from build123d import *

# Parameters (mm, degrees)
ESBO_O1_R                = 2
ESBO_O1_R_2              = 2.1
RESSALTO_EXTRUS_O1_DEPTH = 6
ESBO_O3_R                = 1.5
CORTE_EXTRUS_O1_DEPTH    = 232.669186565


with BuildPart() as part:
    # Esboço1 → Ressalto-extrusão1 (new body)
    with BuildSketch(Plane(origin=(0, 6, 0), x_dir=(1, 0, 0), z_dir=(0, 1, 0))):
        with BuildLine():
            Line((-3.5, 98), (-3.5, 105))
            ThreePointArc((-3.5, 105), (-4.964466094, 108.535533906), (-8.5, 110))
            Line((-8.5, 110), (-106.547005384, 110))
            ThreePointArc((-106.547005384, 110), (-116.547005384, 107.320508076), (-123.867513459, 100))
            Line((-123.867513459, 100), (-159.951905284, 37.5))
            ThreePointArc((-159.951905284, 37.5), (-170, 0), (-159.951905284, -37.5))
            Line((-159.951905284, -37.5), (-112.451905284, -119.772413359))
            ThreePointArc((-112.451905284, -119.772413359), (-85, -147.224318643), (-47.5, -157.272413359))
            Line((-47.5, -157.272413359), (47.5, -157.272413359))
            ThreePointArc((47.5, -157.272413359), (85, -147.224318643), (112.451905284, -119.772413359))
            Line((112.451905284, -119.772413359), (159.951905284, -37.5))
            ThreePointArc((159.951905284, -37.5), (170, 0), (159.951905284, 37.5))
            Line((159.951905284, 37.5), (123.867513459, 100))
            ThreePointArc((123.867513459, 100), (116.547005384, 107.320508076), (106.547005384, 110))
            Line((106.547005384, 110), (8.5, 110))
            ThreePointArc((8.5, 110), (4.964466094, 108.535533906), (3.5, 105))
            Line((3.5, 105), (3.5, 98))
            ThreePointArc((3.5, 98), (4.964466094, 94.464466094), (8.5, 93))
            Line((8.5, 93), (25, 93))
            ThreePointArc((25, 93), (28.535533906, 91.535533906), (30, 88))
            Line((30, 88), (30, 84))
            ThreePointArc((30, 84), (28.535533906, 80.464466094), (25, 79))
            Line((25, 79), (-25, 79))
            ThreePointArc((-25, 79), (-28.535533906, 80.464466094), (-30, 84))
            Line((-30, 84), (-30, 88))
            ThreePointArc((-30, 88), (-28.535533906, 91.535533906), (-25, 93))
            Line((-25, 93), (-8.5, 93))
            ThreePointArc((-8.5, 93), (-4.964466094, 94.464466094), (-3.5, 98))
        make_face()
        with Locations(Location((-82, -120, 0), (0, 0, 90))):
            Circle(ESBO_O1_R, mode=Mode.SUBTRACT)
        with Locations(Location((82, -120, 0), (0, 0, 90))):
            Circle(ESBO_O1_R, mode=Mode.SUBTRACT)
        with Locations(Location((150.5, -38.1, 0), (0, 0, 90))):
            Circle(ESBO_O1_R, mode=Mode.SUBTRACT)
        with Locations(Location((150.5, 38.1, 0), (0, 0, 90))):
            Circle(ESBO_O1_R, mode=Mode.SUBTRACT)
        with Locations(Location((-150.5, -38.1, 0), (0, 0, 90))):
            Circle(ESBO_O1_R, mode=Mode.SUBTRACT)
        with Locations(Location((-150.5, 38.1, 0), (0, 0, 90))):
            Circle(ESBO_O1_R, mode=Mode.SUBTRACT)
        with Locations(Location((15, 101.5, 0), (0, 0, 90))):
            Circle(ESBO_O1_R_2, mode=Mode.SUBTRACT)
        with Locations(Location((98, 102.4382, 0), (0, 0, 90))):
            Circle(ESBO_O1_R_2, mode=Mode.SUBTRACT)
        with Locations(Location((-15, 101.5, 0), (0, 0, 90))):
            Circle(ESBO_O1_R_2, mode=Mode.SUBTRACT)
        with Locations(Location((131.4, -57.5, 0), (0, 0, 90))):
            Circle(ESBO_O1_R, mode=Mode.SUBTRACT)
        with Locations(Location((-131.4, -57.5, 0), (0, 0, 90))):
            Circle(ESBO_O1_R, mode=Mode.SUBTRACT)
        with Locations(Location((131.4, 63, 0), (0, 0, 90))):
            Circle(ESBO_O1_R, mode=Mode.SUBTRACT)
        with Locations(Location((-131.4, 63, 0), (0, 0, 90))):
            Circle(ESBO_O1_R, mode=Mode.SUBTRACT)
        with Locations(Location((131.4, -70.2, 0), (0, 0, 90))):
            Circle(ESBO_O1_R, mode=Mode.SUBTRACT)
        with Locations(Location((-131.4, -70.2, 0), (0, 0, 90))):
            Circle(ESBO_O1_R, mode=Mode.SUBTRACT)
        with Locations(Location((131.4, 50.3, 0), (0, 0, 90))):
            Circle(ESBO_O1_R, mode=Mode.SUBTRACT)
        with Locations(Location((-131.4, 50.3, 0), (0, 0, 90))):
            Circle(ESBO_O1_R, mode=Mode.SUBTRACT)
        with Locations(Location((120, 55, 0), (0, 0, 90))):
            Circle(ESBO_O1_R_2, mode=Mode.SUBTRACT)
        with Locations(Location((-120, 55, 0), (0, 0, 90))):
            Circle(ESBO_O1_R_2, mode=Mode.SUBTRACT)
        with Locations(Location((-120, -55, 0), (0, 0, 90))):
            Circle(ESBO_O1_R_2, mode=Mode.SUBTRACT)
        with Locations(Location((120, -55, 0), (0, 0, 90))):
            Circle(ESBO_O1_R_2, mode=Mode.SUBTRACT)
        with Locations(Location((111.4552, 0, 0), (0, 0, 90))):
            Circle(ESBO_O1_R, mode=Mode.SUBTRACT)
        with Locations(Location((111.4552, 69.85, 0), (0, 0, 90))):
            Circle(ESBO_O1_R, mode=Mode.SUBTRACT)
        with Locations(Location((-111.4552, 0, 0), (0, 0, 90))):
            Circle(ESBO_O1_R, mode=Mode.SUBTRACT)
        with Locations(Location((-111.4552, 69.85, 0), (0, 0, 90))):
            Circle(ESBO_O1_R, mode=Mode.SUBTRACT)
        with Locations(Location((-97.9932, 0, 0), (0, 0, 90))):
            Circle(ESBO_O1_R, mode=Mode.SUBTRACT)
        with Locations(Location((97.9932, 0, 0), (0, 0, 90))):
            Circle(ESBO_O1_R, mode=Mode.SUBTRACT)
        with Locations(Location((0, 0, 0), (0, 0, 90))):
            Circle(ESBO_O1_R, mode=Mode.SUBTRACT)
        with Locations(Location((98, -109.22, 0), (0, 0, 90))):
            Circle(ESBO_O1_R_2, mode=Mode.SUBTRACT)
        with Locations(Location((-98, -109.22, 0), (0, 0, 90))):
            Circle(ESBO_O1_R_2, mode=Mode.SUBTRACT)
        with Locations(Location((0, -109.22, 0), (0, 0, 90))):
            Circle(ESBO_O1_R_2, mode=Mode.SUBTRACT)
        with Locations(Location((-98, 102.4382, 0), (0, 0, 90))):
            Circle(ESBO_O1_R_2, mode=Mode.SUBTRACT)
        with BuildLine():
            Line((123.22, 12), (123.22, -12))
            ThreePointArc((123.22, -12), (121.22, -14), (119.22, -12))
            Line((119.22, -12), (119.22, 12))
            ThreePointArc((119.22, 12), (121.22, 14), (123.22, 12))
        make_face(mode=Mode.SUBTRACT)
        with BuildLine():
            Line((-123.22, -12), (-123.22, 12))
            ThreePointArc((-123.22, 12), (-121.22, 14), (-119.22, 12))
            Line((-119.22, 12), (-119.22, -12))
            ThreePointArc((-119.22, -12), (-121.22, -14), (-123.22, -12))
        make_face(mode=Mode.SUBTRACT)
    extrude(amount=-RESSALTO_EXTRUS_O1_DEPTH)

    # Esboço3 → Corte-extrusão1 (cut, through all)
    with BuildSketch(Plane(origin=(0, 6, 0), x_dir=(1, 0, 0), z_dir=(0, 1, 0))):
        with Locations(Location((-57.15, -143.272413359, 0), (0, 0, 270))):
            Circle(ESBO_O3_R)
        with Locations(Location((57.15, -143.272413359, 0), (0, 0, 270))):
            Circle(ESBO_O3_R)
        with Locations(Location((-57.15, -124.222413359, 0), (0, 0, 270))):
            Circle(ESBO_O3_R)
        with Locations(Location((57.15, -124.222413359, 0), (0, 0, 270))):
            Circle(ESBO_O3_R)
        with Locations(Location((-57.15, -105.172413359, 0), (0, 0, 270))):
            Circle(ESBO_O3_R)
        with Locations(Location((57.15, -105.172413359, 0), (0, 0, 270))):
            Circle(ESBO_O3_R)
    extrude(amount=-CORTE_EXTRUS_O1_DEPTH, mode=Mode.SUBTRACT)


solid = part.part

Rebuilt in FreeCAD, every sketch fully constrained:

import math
import FreeCAD as App
import Part
import Sketcher
Q = App.Units.Quantity

doc = App.newDocument("Part")
body = doc.addObject("PartDesign::Body", "Body")

# Sketch on XZ plane
sketch1 = body.newObject("Sketcher::SketchObject", "Sketch")
sketch1.AttachmentSupport = (doc.getObject("XZ_Plane"), [""])
sketch1.MapMode = "FlatFace"
sketch1.AttachmentOffset = App.Placement(App.Vector(0, 0, -6), App.Rotation())
sketch1.addGeometry([
    Part.LineSegment(App.Vector(-3.5, -98, 0), App.Vector(-3.5, -105, 0)),  # 0
    Part.ArcOfCircle(Part.Circle(App.Vector(-8.5, -105, 0), App.Vector(0, 0, 1), 5), math.radians(-90), math.radians(0)),  # 1
    Part.LineSegment(App.Vector(-8.5, -110, 0), App.Vector(-106.547005, -110, 0)),  # 2
    Part.ArcOfCircle(Part.Circle(App.Vector(-106.547005, -90, 0), App.Vector(0, 0, 1), 20), math.radians(-150), math.radians(-90)),  # 3
    Part.LineSegment(App.Vector(-123.867513, -100, 0), App.Vector(-159.951905, -37.5, 0)),  # 4
    Part.ArcOfCircle(Part.Circle(App.Vector(-95, 0, 0), App.Vector(0, 0, 1), 75), math.radians(150), math.radians(210)),  # 5
    Part.LineSegment(App.Vector(-159.951905, 37.5, 0), App.Vector(-112.451905, 119.772413, 0)),  # 6
    Part.ArcOfCircle(Part.Circle(App.Vector(-47.5, 82.272413, 0), App.Vector(0, 0, 1), 75), math.radians(90), math.radians(150)),  # 7
    Part.LineSegment(App.Vector(-47.5, 157.272413, 0), App.Vector(47.5, 157.272413, 0)),  # 8
    Part.ArcOfCircle(Part.Circle(App.Vector(47.5, 82.272413, 0), App.Vector(0, 0, 1), 75), math.radians(30), math.radians(90)),  # 9
    Part.LineSegment(App.Vector(112.451905, 119.772413, 0), App.Vector(159.951905, 37.5, 0)),  # 10
    Part.ArcOfCircle(Part.Circle(App.Vector(95, 0, 0), App.Vector(0, 0, 1), 75), math.radians(-30), math.radians(30)),  # 11
    Part.LineSegment(App.Vector(159.951905, -37.5, 0), App.Vector(123.867513, -100, 0)),  # 12
    Part.ArcOfCircle(Part.Circle(App.Vector(106.547005, -90, 0), App.Vector(0, 0, 1), 20), math.radians(-90), math.radians(-30)),  # 13
    Part.LineSegment(App.Vector(106.547005, -110, 0), App.Vector(8.5, -110, 0)),  # 14
    Part.ArcOfCircle(Part.Circle(App.Vector(8.5, -105, 0), App.Vector(0, 0, 1), 5), math.radians(180), math.radians(270)),  # 15
    Part.LineSegment(App.Vector(3.5, -105, 0), App.Vector(3.5, -98, 0)),  # 16
    Part.ArcOfCircle(Part.Circle(App.Vector(8.5, -98, 0), App.Vector(0, 0, 1), 5), math.radians(90), math.radians(180)),  # 17
    Part.LineSegment(App.Vector(8.5, -93, 0), App.Vector(25, -93, 0)),  # 18
    Part.ArcOfCircle(Part.Circle(App.Vector(25, -88, 0), App.Vector(0, 0, 1), 5), math.radians(-90), math.radians(0)),  # 19
    Part.LineSegment(App.Vector(30, -88, 0), App.Vector(30, -84, 0)),  # 20
    Part.ArcOfCircle(Part.Circle(App.Vector(25, -84, 0), App.Vector(0, 0, 1), 5), math.radians(0), math.radians(90)),  # 21
    Part.LineSegment(App.Vector(25, -79, 0), App.Vector(-25, -79, 0)),  # 22
    Part.ArcOfCircle(Part.Circle(App.Vector(-25, -84, 0), App.Vector(0, 0, 1), 5), math.radians(90), math.radians(180)),  # 23
    Part.LineSegment(App.Vector(-30, -84, 0), App.Vector(-30, -88, 0)),  # 24
    Part.ArcOfCircle(Part.Circle(App.Vector(-25, -88, 0), App.Vector(0, 0, 1), 5), math.radians(180), math.radians(270)),  # 25
    Part.LineSegment(App.Vector(-25, -93, 0), App.Vector(-8.5, -93, 0)),  # 26
    Part.ArcOfCircle(Part.Circle(App.Vector(-8.5, -98, 0), App.Vector(0, 0, 1), 5), math.radians(0), math.radians(90)),  # 27
    Part.Circle(App.Vector(-98, 109.22, 0), App.Vector(0, 0, 1), 2.1),  # 28
    Part.Circle(App.Vector(-82, 120, 0), App.Vector(0, 0, 1), 2),  # 29
    Part.Circle(App.Vector(-131.4, 70.2, 0), App.Vector(0, 0, 1), 2),  # 30
    Part.Circle(App.Vector(-131.4, 57.5, 0), App.Vector(0, 0, 1), 2),  # 31
    Part.Circle(App.Vector(-120, 55, 0), App.Vector(0, 0, 1), 2.1),  # 32
    Part.Circle(App.Vector(-150.5, 38.1, 0), App.Vector(0, 0, 1), 2),  # 33
    Part.Circle(App.Vector(0, 109.22, 0), App.Vector(0, 0, 1), 2.1),  # 34
    Part.Circle(App.Vector(82, 120, 0), App.Vector(0, 0, 1), 2),  # 35
    Part.Circle(App.Vector(98, 109.22, 0), App.Vector(0, 0, 1), 2.1),  # 36
    Part.Circle(App.Vector(131.4, 70.2, 0), App.Vector(0, 0, 1), 2),  # 37
    Part.Circle(App.Vector(120, 55, 0), App.Vector(0, 0, 1), 2.1),  # 38
    Part.Circle(App.Vector(131.4, 57.5, 0), App.Vector(0, 0, 1), 2),  # 39
    Part.Circle(App.Vector(150.5, 38.1, 0), App.Vector(0, 0, 1), 2),  # 40
    Part.ArcOfCircle(Part.Circle(App.Vector(-121.22, 12, 0), App.Vector(0, 0, 1), 2), math.radians(0), math.radians(180)),  # 41
    Part.LineSegment(App.Vector(-123.22, 12, 0), App.Vector(-123.22, -12, 0)),  # 42
    Part.ArcOfCircle(Part.Circle(App.Vector(-121.22, -12, 0), App.Vector(0, 0, 1), 2), math.radians(180), math.radians(360)),  # 43
    Part.LineSegment(App.Vector(-119.22, -12, 0), App.Vector(-119.22, 12, 0)),  # 44
    Part.Circle(App.Vector(-111.4552, 0, 0), App.Vector(0, 0, 1), 2),  # 45
    Part.Circle(App.Vector(-97.9932, 0, 0), App.Vector(0, 0, 1), 2),  # 46
    Part.Circle(App.Vector(-150.5, -38.1, 0), App.Vector(0, 0, 1), 2),  # 47
    Part.Circle(App.Vector(-131.4, -50.3, 0), App.Vector(0, 0, 1), 2),  # 48
    Part.Circle(App.Vector(-120, -55, 0), App.Vector(0, 0, 1), 2.1),  # 49
    Part.Circle(App.Vector(-131.4, -63, 0), App.Vector(0, 0, 1), 2),  # 50
    Part.Circle(App.Vector(-111.4552, -69.85, 0), App.Vector(0, 0, 1), 2),  # 51
    Part.Circle(App.Vector(-98, -102.4382, 0), App.Vector(0, 0, 1), 2.1),  # 52
    Part.Circle(App.Vector(-15, -101.5, 0), App.Vector(0, 0, 1), 2.1),  # 53
    Part.Circle(App.Vector(0, 0, 0), App.Vector(0, 0, 1), 2),  # 54
    Part.Circle(App.Vector(97.9932, 0, 0), App.Vector(0, 0, 1), 2),  # 55
    Part.Circle(App.Vector(111.4552, 0, 0), App.Vector(0, 0, 1), 2),  # 56
    Part.ArcOfCircle(Part.Circle(App.Vector(121.22, -12, 0), App.Vector(0, 0, 1), 2), math.radians(180), math.radians(360)),  # 57
    Part.LineSegment(App.Vector(123.22, -12, 0), App.Vector(123.22, 12, 0)),  # 58
    Part.ArcOfCircle(Part.Circle(App.Vector(121.22, 12, 0), App.Vector(0, 0, 1), 2), math.radians(0), math.radians(180)),  # 59
    Part.LineSegment(App.Vector(119.22, 12, 0), App.Vector(119.22, -12, 0)),  # 60
    Part.Circle(App.Vector(150.5, -38.1, 0), App.Vector(0, 0, 1), 2),  # 61
    Part.Circle(App.Vector(15, -101.5, 0), App.Vector(0, 0, 1), 2.1),  # 62
    Part.Circle(App.Vector(111.4552, -69.85, 0), App.Vector(0, 0, 1), 2),  # 63
    Part.Circle(App.Vector(131.4, -50.3, 0), App.Vector(0, 0, 1), 2),  # 64
    Part.Circle(App.Vector(120, -55, 0), App.Vector(0, 0, 1), 2.1),  # 65
    Part.Circle(App.Vector(131.4, -63, 0), App.Vector(0, 0, 1), 2),  # 66
    Part.Circle(App.Vector(98, -102.4382, 0), App.Vector(0, 0, 1), 2.1),  # 67
], False)
sketch1.addConstraint([
    Sketcher.Constraint("Tangent", 0, 2, 1, 2),
    Sketcher.Constraint("Tangent", 1, 1, 2, 1),
    Sketcher.Constraint("Tangent", 2, 2, 3, 2),
    Sketcher.Constraint("Tangent", 3, 1, 4, 1),
    Sketcher.Constraint("Tangent", 4, 2, 5, 2),
    Sketcher.Constraint("Tangent", 5, 1, 6, 1),
    Sketcher.Constraint("Tangent", 6, 2, 7, 2),
    Sketcher.Constraint("Tangent", 7, 1, 8, 1),
    Sketcher.Constraint("Tangent", 8, 2, 9, 2),
    Sketcher.Constraint("Tangent", 9, 1, 10, 1),
    Sketcher.Constraint("Tangent", 10, 2, 11, 2),
    Sketcher.Constraint("Tangent", 11, 1, 12, 1),
    Sketcher.Constraint("Tangent", 12, 2, 13, 2),
    Sketcher.Constraint("Tangent", 13, 1, 14, 1),
    Sketcher.Constraint("Tangent", 14, 2, 15, 2),
    Sketcher.Constraint("Tangent", 15, 1, 16, 1),
    Sketcher.Constraint("Tangent", 16, 2, 17, 2),
    Sketcher.Constraint("Tangent", 17, 1, 18, 1),
    Sketcher.Constraint("Tangent", 18, 2, 19, 1),
    Sketcher.Constraint("Tangent", 19, 2, 20, 1),
    Sketcher.Constraint("Tangent", 20, 2, 21, 1),
    Sketcher.Constraint("Tangent", 21, 2, 22, 1),
    Sketcher.Constraint("Tangent", 22, 2, 23, 1),
    Sketcher.Constraint("Tangent", 23, 2, 24, 1),
    Sketcher.Constraint("Tangent", 24, 2, 25, 1),
    Sketcher.Constraint("Tangent", 25, 2, 26, 1),
    Sketcher.Constraint("Tangent", 26, 2, 27, 2),
    Sketcher.Constraint("Tangent", 27, 1, 0, 1),
    Sketcher.Constraint("Tangent", 41, 2, 42, 1),
    Sketcher.Constraint("Tangent", 42, 2, 43, 1),
    Sketcher.Constraint("Tangent", 43, 2, 44, 1),
    Sketcher.Constraint("Tangent", 44, 2, 41, 1),
    Sketcher.Constraint("Tangent", 57, 2, 58, 1),
    Sketcher.Constraint("Tangent", 58, 2, 59, 1),
    Sketcher.Constraint("Tangent", 59, 2, 60, 1),
    Sketcher.Constraint("Tangent", 60, 2, 57, 1),
    Sketcher.Constraint("Vertical", 0),
    Sketcher.Constraint("Horizontal", 2),
    Sketcher.Constraint("Horizontal", 8),
    Sketcher.Constraint("Horizontal", 14),
    Sketcher.Constraint("Vertical", 16),
    Sketcher.Constraint("Horizontal", 18),
    Sketcher.Constraint("Vertical", 20),
    Sketcher.Constraint("Horizontal", 22),
    Sketcher.Constraint("Vertical", 24),
    Sketcher.Constraint("Horizontal", 26),
    Sketcher.Constraint("Vertical", 42),
    Sketcher.Constraint("Vertical", 44),
    Sketcher.Constraint("Vertical", 58),
    Sketcher.Constraint("Vertical", 60),
    Sketcher.Constraint("Coincident", 54, 3, -1, 1),
    Sketcher.Constraint("Equal", 5, 7),
    Sketcher.Constraint("Equal", 7, 9),
    Sketcher.Constraint("Equal", 9, 11),
    Sketcher.Constraint("Equal", 3, 13),
    Sketcher.Constraint("Equal", 1, 15),
    Sketcher.Constraint("Equal", 15, 17),
    Sketcher.Constraint("Equal", 17, 19),
    Sketcher.Constraint("Equal", 19, 21),
    Sketcher.Constraint("Equal", 21, 23),
    Sketcher.Constraint("Equal", 23, 25),
    Sketcher.Constraint("Equal", 25, 27),
    Sketcher.Constraint("Equal", 29, 30),
    Sketcher.Constraint("Equal", 30, 31),
    Sketcher.Constraint("Equal", 28, 32),
    Sketcher.Constraint("Equal", 31, 33),
    Sketcher.Constraint("Equal", 32, 34),
    Sketcher.Constraint("Equal", 33, 35),
    Sketcher.Constraint("Equal", 34, 36),
    Sketcher.Constraint("Equal", 35, 37),
    Sketcher.Constraint("Equal", 36, 38),
    Sketcher.Constraint("Equal", 37, 39),
    Sketcher.Constraint("Equal", 39, 40),
    Sketcher.Constraint("Equal", 40, 41),
    Sketcher.Constraint("Equal", 43, 45),
    Sketcher.Constraint("Equal", 45, 46),
    Sketcher.Constraint("Equal", 46, 47),
    Sketcher.Constraint("Equal", 47, 48),
    Sketcher.Constraint("Equal", 38, 49),
    Sketcher.Constraint("Equal", 48, 50),
    Sketcher.Constraint("Equal", 50, 51),
    Sketcher.Constraint("Equal", 49, 52),
    Sketcher.Constraint("Equal", 52, 53),
    Sketcher.Constraint("Equal", 51, 54),
    Sketcher.Constraint("Equal", 54, 55),
    Sketcher.Constraint("Equal", 55, 56),
    Sketcher.Constraint("Equal", 56, 57),
    Sketcher.Constraint("Equal", 59, 61),
    Sketcher.Constraint("Equal", 53, 62),
    Sketcher.Constraint("Equal", 61, 63),
    Sketcher.Constraint("Equal", 63, 64),
    Sketcher.Constraint("Equal", 62, 65),
    Sketcher.Constraint("Equal", 64, 66),
    Sketcher.Constraint("Equal", 65, 67),
    Sketcher.Constraint("Symmetric", 5, 3, 11, 3, -1, 1),
    Sketcher.Constraint("Symmetric", 40, 3, 47, 3, -1, 1),
    Sketcher.Constraint("Symmetric", 38, 3, 49, 3, -1, 1),
    Sketcher.Constraint("Symmetric", 46, 3, 55, 3, -1, 1),
    Sketcher.Constraint("Symmetric", 45, 3, 56, 3, -1, 1),
    Sketcher.Constraint("Symmetric", 41, 3, 57, 3, -1, 1),
    Sketcher.Constraint("Symmetric", 33, 3, 61, 3, -1, 1),
    Sketcher.Constraint("Symmetric", 32, 3, 65, 3, -1, 1),
    Sketcher.Constraint("Symmetric", 3, 3, 13, 3, -2),
    Sketcher.Constraint("Symmetric", 19, 3, 25, 3, -2),
    Sketcher.Constraint("Symmetric", 29, 3, 35, 3, -2),
    Sketcher.Constraint("Symmetric", 28, 3, 36, 3, -2),
    Sketcher.Constraint("Symmetric", 30, 3, 37, 3, -2),
    Sketcher.Constraint("Symmetric", 32, 3, 38, 3, -2),
    Sketcher.Constraint("Symmetric", 31, 3, 39, 3, -2),
    Sketcher.Constraint("Symmetric", 33, 3, 40, 3, -2),
    Sketcher.Constraint("Symmetric", 53, 3, 62, 3, -2),
    Sketcher.Constraint("Symmetric", 51, 3, 63, 3, -2),
    Sketcher.Constraint("Symmetric", 48, 3, 64, 3, -2),
    Sketcher.Constraint("Symmetric", 50, 3, 66, 3, -2),
    Sketcher.Constraint("Symmetric", 52, 3, 67, 3, -2),
    Sketcher.Constraint("Symmetric", 6, 2, 9, 1, -2),
    Sketcher.Constraint("PointOnObject", 34, 3, -2),
    Sketcher.Constraint("PointOnObject", 45, 3, -1),
    Sketcher.Constraint("PointOnObject", 46, 3, -1),
    Sketcher.Constraint("Parallel", 4, 10),
    Sketcher.Constraint("Horizontal", 28, 3, 34, 3),
    Sketcher.Constraint("Horizontal", 43, 3, 57, 3),
    Sketcher.Constraint("Horizontal", 41, 3, 59, 3),
    Sketcher.Constraint("Vertical", 30, 3, 31, 3),
    Sketcher.Constraint("Vertical", 31, 3, 48, 3),
    Sketcher.Constraint("Vertical", 48, 3, 50, 3),
    Sketcher.Constraint("Vertical", 45, 3, 51, 3),
    Sketcher.Constraint("Vertical", 28, 3, 52, 3),
    Sketcher.Constraint("Equal", 2, 14),
    Sketcher.Constraint("Diameter", 29, Q("4 mm")),
    Sketcher.Constraint("Radius", 1, Q("5 mm")),
    Sketcher.Constraint("Radius", 3, Q("20 mm")),
    Sketcher.Constraint("Radius", 5, Q("75 mm")),
    Sketcher.Constraint("Diameter", 28, Q("4.2 mm")),
    Sketcher.Constraint("DistanceX", 8, 1, 8, 2, Q("95 mm")),
    Sketcher.Constraint("DistanceX", 22, 2, 22, 1, Q("50 mm")),
    Sketcher.Constraint("DistanceY", 0, 2, 0, 1, Q("7 mm")),
    Sketcher.Constraint("DistanceY", 20, 1, 20, 2, Q("4 mm")),
    Sketcher.Constraint("DistanceY", 42, 2, 42, 1, Q("24 mm")),
    Sketcher.Constraint("Angle", 4, Q("120 deg")),
    Sketcher.Constraint("Distance", 6, Q("95 mm")),
    Sketcher.Constraint("DistanceX", 18, 1, 18, 2, Q("16.5 mm")),
    Sketcher.Constraint("DistanceY", 1, 3, -1, 1, Q("105 mm")),
    Sketcher.Constraint("DistanceX", 28, 3, -1, 1, Q("98 mm")),
    Sketcher.Constraint("DistanceX", 29, 3, -1, 1, Q("82 mm")),
    Sketcher.Constraint("DistanceY", -1, 1, 29, 3, Q("120 mm")),
    Sketcher.Constraint("DistanceX", 32, 3, -1, 1, Q("120 mm")),
    Sketcher.Constraint("DistanceY", -1, 1, 32, 3, Q("55 mm")),
    Sketcher.Constraint("DistanceY", 50, 3, -1, 1, Q("63 mm")),
    Sketcher.Constraint("DistanceX", 53, 3, -1, 1, Q("15 mm")),
    Sketcher.Constraint("DistanceX", 30, 3, -1, 1, Q("131.4 mm")),
    Sketcher.Constraint("DistanceY", -1, 1, 30, 3, Q("70.2 mm")),
    Sketcher.Constraint("DistanceY", -1, 1, 31, 3, Q("57.5 mm")),
    Sketcher.Constraint("DistanceX", 33, 3, -1, 1, Q("150.5 mm")),
    Sketcher.Constraint("DistanceY", -1, 1, 33, 3, Q("38.1 mm")),
    Sketcher.Constraint("DistanceY", 48, 3, -1, 1, Q("50.3 mm")),
    Sketcher.Constraint("DistanceY", 53, 3, -1, 1, Q("101.5 mm")),
    Sketcher.Constraint("DistanceY", -1, 1, 28, 3, Q("109.22 mm")),
    Sketcher.Constraint("DistanceX", 41, 3, -1, 1, Q("121.22 mm")),
    Sketcher.Constraint("DistanceY", 51, 3, -1, 1, Q("69.85 mm")),
    Sketcher.Constraint("DistanceX", 45, 3, -1, 1, Q("111.4552 mm")),
    Sketcher.Constraint("DistanceX", 46, 3, -1, 1, Q("97.9932 mm")),
    Sketcher.Constraint("DistanceY", 52, 3, -1, 1, Q("102.4382 mm")),
])
pad1 = body.newObject("PartDesign::Pad", "Pad")
pad1.Profile = sketch1
pad1.Length = 6

# Sketch on XZ plane
sketch2 = body.newObject("Sketcher::SketchObject", "Sketch001")
sketch2.AttachmentSupport = (doc.getObject("XZ_Plane"), [""])
sketch2.MapMode = "FlatFace"
sketch2.AttachmentOffset = App.Placement(App.Vector(0, 0, -6), App.Rotation())
sketch2.addGeometry([
    Part.Circle(App.Vector(-57.15, 143.272413, 0), App.Vector(0, 0, 1), 1.5),  # 0
    Part.Circle(App.Vector(57.15, 143.272413, 0), App.Vector(0, 0, 1), 1.5),  # 1
    Part.Circle(App.Vector(-57.15, 124.222413, 0), App.Vector(0, 0, 1), 1.5),  # 2
    Part.Circle(App.Vector(57.15, 124.222413, 0), App.Vector(0, 0, 1), 1.5),  # 3
    Part.Circle(App.Vector(-57.15, 105.172413, 0), App.Vector(0, 0, 1), 1.5),  # 4
    Part.Circle(App.Vector(57.15, 105.172413, 0), App.Vector(0, 0, 1), 1.5),  # 5
], False)
sketch2.addConstraint([
    Sketcher.Constraint("Equal", 0, 1),
    Sketcher.Constraint("Equal", 1, 2),
    Sketcher.Constraint("Equal", 2, 3),
    Sketcher.Constraint("Equal", 3, 4),
    Sketcher.Constraint("Equal", 4, 5),
    Sketcher.Constraint("Symmetric", 0, 3, 1, 3, -2),
    Sketcher.Constraint("Symmetric", 2, 3, 3, 3, -2),
    Sketcher.Constraint("Symmetric", 4, 3, 5, 3, -2),
    Sketcher.Constraint("Vertical", 0, 3, 2, 3),
    Sketcher.Constraint("Vertical", 2, 3, 4, 3),
    Sketcher.Constraint("Diameter", 0, Q("3 mm")),
    Sketcher.Constraint("DistanceX", 0, 3, 1, 3, Q("114.3 mm")),
    Sketcher.Constraint("DistanceY", 4, 3, 0, 3, Q("38.1 mm")),
    Sketcher.Constraint("DistanceY", 2, 3, 0, 3, Q("19.05 mm")),
    Sketcher.Constraint("DistanceY", -1, 1, 0, 3, Q("143.272413 mm")),
])
pocket1 = body.newObject("PartDesign::Pocket", "Pocket")
pocket1.Profile = sketch2
pocket1.Type = "ThroughAll"
pocket1.Reversed = True

doc.recompute()
